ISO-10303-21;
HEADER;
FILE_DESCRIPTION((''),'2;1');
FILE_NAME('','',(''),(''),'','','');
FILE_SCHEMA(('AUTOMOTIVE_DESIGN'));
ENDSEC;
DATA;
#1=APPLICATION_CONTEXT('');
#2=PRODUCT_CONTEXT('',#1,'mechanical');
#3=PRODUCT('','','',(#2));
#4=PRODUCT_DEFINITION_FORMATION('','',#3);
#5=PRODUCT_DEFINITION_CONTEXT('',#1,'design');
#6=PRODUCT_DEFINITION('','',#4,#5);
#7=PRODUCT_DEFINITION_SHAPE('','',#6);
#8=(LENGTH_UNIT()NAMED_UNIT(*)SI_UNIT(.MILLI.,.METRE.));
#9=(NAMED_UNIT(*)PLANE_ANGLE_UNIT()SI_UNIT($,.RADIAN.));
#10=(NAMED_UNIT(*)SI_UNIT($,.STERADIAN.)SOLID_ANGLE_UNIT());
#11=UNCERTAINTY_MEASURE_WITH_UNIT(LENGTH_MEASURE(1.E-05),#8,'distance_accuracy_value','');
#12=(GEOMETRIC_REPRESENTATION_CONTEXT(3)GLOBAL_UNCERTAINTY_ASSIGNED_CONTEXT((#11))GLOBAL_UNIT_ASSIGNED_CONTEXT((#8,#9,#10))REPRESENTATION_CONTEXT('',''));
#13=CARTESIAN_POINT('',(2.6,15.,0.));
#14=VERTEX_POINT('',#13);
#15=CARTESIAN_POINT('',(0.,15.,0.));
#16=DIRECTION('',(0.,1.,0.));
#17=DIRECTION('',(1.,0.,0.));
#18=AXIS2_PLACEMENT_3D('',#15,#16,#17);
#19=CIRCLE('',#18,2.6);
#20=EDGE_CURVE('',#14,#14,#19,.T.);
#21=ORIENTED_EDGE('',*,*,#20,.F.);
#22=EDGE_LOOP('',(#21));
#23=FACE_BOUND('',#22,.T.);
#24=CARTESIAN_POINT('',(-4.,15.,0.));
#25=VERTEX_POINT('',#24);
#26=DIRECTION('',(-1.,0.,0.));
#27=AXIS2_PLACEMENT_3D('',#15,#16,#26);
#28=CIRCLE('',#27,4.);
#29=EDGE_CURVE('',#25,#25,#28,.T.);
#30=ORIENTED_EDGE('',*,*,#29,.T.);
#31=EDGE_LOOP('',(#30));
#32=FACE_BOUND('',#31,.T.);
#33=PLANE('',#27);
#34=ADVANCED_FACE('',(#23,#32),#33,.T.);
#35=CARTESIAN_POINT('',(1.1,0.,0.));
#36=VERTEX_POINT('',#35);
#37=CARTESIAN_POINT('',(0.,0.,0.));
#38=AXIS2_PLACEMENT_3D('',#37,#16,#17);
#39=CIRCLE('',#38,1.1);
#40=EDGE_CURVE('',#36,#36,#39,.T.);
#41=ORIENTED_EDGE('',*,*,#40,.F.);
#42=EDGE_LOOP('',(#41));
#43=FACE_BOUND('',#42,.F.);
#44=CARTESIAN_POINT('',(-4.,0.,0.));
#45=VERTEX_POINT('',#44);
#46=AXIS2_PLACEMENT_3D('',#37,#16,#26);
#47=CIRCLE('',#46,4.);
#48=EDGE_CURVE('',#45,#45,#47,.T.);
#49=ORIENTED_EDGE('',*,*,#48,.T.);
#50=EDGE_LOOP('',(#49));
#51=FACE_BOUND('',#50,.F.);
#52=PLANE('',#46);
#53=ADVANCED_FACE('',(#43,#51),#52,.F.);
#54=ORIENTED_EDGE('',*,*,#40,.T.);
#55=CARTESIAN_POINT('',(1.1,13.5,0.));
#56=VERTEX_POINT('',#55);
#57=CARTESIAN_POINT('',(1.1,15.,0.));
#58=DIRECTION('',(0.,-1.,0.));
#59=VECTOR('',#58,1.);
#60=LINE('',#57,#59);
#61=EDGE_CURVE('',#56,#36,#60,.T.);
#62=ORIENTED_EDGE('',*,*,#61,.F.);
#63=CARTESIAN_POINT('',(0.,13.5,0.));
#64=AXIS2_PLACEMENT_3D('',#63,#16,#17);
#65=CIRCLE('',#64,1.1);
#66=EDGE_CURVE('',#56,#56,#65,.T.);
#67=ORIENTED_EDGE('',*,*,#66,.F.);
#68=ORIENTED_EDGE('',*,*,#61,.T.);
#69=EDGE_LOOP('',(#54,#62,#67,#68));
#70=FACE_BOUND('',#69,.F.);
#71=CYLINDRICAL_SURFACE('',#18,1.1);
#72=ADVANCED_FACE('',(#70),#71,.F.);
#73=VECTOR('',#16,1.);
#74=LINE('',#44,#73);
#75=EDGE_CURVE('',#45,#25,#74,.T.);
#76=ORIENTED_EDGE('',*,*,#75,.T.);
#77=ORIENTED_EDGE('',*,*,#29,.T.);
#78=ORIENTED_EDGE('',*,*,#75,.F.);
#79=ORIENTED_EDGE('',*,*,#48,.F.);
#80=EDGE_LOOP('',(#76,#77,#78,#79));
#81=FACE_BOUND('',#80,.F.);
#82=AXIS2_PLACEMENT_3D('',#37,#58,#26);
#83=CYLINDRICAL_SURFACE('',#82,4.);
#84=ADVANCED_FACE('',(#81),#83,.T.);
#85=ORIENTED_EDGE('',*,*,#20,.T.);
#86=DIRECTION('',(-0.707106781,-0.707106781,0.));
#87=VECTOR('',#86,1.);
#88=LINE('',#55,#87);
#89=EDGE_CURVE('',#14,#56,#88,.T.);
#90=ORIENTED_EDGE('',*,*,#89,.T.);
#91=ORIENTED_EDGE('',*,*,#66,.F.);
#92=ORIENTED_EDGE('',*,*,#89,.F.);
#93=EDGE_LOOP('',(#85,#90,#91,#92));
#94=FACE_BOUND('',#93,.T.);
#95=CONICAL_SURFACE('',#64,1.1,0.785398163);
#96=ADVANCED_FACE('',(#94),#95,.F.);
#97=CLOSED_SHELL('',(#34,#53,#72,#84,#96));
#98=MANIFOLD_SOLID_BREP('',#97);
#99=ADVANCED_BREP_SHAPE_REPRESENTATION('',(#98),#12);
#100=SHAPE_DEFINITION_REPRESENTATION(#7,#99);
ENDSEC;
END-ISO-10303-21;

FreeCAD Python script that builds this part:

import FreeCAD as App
import Part
import Sketcher
from FreeCAD import Vector


def edges_at(feature, points):
    """Names of the edges that pass closest to the given points."""
    edges = feature.Shape.Edges
    near = lambda p: min(range(len(edges)), key=lambda i: edges[i].distToShape(Part.Vertex(*p))[0])
    return sorted({f"Edge{near(p) + 1}" for p in points})

doc = App.newDocument("Part")
body = doc.addObject("PartDesign::Body", "Body")

sketch1 = doc.addObject("Sketcher::SketchObject", "Sketch")
body.addObject(sketch1)
sketch1.AttachmentSupport = (doc.XZ_Plane, [""])
sketch1.MapMode = "FlatFace"
sketch1.addGeometry(Part.Circle(Vector(0, 0, 0), Vector(0, 0, 1), 4), False)
sketch1.addConstraint([
    Sketcher.Constraint("Coincident", 0, 3, -1, 1),
    Sketcher.Constraint("Diameter", 0, 8.0),
])
pad1 = doc.addObject("PartDesign::Pad", "Pad")
body.addObject(pad1)
pad1.Profile = sketch1
pad1.Length = 15
pad1.Reversed = True

sketch2 = doc.addObject("Sketcher::SketchObject", "Sketch001")
body.addObject(sketch2)
sketch2.AttachmentSupport = (doc.XZ_Plane, [""])
sketch2.MapMode = "FlatFace"
sketch2.AttachmentOffset = App.Placement(Vector(0, 0, -15), App.Rotation())
sketch2.addGeometry(Part.Circle(Vector(0, 0, 0), Vector(0, 0, 1), 1.1), False)
sketch2.addConstraint([
    Sketcher.Constraint("Coincident", 0, 3, -1, 1),
    Sketcher.Constraint("Diameter", 0, 2.2),
])
pocket1 = doc.addObject("PartDesign::Pocket", "Pocket")
body.addObject(pocket1)
pocket1.Profile = sketch2
pocket1.Type = "ThroughAll"
pocket1.Reversed = True
doc.recompute()

chamfer = doc.addObject("PartDesign::Chamfer", "Chamfer")
body.addObject(chamfer)
chamfer.Base = (pocket1, edges_at(pocket1, [(-1.1, 15, 0)]))
chamfer.Size = 1.5

doc.recompute()
